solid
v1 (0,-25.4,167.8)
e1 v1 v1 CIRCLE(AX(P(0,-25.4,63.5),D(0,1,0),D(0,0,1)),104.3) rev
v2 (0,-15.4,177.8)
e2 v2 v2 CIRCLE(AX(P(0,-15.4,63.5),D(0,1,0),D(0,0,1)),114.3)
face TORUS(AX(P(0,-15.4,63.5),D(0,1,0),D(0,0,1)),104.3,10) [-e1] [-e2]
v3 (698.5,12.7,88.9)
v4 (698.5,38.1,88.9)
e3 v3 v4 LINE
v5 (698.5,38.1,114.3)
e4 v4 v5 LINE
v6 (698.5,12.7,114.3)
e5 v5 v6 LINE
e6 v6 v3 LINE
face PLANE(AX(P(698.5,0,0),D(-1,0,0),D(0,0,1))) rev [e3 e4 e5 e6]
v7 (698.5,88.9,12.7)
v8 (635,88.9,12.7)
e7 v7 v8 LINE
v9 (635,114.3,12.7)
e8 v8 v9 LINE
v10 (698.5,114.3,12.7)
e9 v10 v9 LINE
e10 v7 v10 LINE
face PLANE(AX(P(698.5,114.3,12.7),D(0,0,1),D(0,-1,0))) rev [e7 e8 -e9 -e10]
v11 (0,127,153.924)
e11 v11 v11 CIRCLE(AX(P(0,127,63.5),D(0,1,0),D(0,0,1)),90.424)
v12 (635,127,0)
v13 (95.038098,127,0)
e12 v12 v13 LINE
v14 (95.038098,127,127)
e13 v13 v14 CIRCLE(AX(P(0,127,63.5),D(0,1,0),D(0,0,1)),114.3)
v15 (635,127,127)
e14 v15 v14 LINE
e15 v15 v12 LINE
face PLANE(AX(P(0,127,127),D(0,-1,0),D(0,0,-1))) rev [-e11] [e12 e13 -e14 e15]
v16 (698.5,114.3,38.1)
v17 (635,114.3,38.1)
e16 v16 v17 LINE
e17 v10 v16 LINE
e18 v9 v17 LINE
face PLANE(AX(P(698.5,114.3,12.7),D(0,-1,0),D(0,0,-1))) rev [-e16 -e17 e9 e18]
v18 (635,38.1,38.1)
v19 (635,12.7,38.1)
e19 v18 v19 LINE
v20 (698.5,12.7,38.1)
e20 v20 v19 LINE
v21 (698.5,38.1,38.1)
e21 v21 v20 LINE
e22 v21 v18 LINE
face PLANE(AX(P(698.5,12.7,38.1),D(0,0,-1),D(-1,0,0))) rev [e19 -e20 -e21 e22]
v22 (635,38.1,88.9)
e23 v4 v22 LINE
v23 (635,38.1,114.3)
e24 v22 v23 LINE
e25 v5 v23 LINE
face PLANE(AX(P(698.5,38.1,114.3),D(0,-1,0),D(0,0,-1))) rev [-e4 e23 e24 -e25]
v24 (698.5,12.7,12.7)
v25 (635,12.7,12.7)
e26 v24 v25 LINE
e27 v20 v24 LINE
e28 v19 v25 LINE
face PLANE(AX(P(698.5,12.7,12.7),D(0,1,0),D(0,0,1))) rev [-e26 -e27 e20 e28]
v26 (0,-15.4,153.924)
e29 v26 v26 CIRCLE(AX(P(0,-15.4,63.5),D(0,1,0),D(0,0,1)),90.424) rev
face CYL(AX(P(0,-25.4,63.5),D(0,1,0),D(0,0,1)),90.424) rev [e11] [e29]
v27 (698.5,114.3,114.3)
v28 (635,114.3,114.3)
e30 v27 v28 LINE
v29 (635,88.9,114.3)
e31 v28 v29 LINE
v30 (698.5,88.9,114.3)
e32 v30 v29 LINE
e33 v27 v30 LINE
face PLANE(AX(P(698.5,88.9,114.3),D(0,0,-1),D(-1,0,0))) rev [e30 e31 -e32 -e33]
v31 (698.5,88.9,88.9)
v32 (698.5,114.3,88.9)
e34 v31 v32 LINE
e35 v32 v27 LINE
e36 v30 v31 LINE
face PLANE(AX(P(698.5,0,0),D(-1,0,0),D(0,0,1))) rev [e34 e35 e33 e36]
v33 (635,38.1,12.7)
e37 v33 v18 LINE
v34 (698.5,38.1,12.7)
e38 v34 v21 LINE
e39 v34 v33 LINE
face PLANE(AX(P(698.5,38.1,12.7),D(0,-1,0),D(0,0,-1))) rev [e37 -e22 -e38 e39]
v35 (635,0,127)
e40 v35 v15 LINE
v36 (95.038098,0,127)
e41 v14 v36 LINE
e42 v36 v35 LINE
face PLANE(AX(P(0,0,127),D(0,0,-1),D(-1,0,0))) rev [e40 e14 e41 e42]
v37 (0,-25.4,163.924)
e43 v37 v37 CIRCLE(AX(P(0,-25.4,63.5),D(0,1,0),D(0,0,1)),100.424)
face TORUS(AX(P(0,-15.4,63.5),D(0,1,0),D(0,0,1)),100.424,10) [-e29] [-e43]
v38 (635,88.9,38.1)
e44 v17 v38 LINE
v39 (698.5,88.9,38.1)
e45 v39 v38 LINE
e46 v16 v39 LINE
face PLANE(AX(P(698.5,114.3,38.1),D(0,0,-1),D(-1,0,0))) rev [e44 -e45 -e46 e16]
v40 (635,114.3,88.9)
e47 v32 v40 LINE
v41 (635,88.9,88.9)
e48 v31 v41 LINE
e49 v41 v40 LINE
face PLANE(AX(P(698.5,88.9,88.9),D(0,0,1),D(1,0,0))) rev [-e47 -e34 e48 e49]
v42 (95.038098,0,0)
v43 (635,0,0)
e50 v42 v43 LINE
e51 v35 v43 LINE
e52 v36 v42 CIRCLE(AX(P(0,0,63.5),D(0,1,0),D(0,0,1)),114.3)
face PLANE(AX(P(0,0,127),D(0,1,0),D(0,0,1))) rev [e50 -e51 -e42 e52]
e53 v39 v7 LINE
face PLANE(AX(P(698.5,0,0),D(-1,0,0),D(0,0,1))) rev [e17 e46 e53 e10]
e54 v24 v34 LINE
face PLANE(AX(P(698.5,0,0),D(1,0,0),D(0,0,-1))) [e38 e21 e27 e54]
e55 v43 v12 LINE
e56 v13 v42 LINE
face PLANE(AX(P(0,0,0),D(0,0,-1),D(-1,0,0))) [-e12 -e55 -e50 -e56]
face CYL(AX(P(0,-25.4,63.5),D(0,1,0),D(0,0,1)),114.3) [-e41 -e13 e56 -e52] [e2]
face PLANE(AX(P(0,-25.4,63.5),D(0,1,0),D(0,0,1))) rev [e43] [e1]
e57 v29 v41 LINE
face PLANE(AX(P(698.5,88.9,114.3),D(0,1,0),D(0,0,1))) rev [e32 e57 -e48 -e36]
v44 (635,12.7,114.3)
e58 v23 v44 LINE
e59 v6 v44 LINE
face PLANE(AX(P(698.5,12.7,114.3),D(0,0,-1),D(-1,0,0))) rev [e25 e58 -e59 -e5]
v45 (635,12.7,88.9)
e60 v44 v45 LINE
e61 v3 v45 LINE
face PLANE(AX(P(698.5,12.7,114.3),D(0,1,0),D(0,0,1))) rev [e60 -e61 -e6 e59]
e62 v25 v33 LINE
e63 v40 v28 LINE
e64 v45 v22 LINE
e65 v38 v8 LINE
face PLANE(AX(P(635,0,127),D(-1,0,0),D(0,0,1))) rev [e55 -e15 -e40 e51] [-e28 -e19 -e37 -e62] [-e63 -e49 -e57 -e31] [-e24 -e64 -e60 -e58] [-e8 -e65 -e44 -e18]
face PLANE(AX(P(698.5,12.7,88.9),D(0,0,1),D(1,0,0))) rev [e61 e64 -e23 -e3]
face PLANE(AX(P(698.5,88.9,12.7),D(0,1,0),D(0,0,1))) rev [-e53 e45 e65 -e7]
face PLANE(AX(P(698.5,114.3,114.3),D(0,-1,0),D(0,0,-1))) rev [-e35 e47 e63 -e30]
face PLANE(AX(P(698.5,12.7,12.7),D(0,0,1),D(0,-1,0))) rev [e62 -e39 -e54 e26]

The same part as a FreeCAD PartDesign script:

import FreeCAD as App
import Part
import Sketcher
from FreeCAD import Vector
Q = App.Units.Quantity


def edges_at(feature, points):
    """Names of the edges that pass closest to the given points."""
    edges = feature.Shape.Edges
    near = lambda p: min(range(len(edges)), key=lambda i: edges[i].distToShape(Part.Vertex(*p))[0])
    return sorted({f"Edge{near(p) + 1}" for p in points})

doc = App.newDocument("Part")
params = doc.addObject("Spreadsheet::Sheet", "Params")
for row, (alias, value) in enumerate([
    ("sketch1_width", "25 in"),
    ("sketch1_height", "5 in"),
    ("pad1_length", "5 in"),
    ("sketch2_diameter", "9 in"),
    ("sketch2_diameter2", "7.12 in"),
    ("pad2_length", "6 in"),
    ("sketch3_diameter", "7.12 in"),
    ("sketch4_width", "1 in"),
    ("pad3_length", "2.5 in"),
    ("fillet_radius", "10 mm"),
], start=1):
    params.set(f"A{row}", alias)
    params.set(f"B{row}", "=" + value)
    params.setAlias(f"B{row}", alias)

body = doc.addObject("PartDesign::Body", "Body")

# Sketch on XY plane
sketch1 = body.newObject("Sketcher::SketchObject", "Sketch")
sketch1.AttachmentSupport = (doc.getObject("XY_Plane"), [""])
sketch1.MapMode = "FlatFace"
sketch1.addGeometry([
    Part.LineSegment(Vector(0, 127, 0), Vector(0, 0, 0)),
    Part.LineSegment(Vector(0, 0, 0), Vector(635, 0, 0)),
    Part.LineSegment(Vector(635, 0, 0), Vector(635, 127, 0)),
    Part.LineSegment(Vector(635, 127, 0), Vector(0, 127, 0)),
], False)
sketch1.addConstraint([
    Sketcher.Constraint("Coincident", 0, 2, 1, 1),
    Sketcher.Constraint("Coincident", 1, 2, 2, 1),
    Sketcher.Constraint("Coincident", 2, 2, 3, 1),
    Sketcher.Constraint("Coincident", 3, 2, 0, 1),
    Sketcher.Constraint("Vertical", 0),
    Sketcher.Constraint("Horizontal", 1),
    Sketcher.Constraint("Vertical", 2),
    Sketcher.Constraint("Horizontal", 3),
    Sketcher.Constraint("Coincident", 0, 2, -1, 1),
    Sketcher.Constraint("DistanceX", 1, 1, 1, 2, Q("25 in")),
    Sketcher.Constraint("DistanceY", 0, 2, 0, 1, Q("5 in")),
])
sketch1.setExpression("Constraints[9]", "Params.sketch1_width")
sketch1.setExpression("Constraints[10]", "Params.sketch1_height")
pad1 = body.newObject("PartDesign::Pad", "Pad")
pad1.Profile = sketch1
pad1.setExpression("Length", "Params.pad1_length")

# Sketch on XZ plane
sketch2 = body.newObject("Sketcher::SketchObject", "Sketch001")
sketch2.AttachmentSupport = (doc.getObject("XZ_Plane"), [""])
sketch2.MapMode = "FlatFace"
sketch2.AttachmentOffset = App.Placement(Vector(0, 0, -5 * 25.4), App.Rotation())
sketch2.addGeometry([
    Part.Circle(Vector(0, 63.5, 0), Vector(0, 0, 1), 114.3),
    Part.Circle(Vector(0, 63.5, 0), Vector(0, 0, 1), 90.424),
], False)
sketch2.addConstraint([
    Sketcher.Constraint("Coincident", 1, 3, 0, 3),
    Sketcher.Constraint("PointOnObject", 0, 3, -2),
    Sketcher.Constraint("Diameter", 0, Q("9 in")),
    Sketcher.Constraint("Diameter", 1, Q("7.12 in")),
    Sketcher.Constraint("DistanceY", -1, 1, 0, 3, Q("2.5 in")),
])
sketch2.setExpression("Constraints[2]", "Params.sketch2_diameter")
sketch2.setExpression("Constraints[3]", "Params.sketch2_diameter2")
pad2 = body.newObject("PartDesign::Pad", "Pad001")
pad2.Profile = sketch2
pad2.setExpression("Length", "Params.pad2_length")

# Sketch on XZ plane
sketch3 = body.newObject("Sketcher::SketchObject", "Sketch002")
sketch3.AttachmentSupport = (doc.getObject("XZ_Plane"), [""])
sketch3.MapMode = "FlatFace"
sketch3.AttachmentOffset = App.Placement(Vector(0, 0, -5 * 25.4), App.Rotation())
sketch3.addGeometry(Part.Circle(Vector(0, 63.5, 0), Vector(0, 0, 1), 90.424), False)
sketch3.addConstraint([
    Sketcher.Constraint("PointOnObject", 0, 3, -2),
    Sketcher.Constraint("Diameter", 0, Q("7.12 in")),
    Sketcher.Constraint("DistanceY", -1, 1, 0, 3, Q("2.5 in")),
])
sketch3.setExpression("Constraints[1]", "Params.sketch3_diameter")
pocket1 = body.newObject("PartDesign::Pocket", "Pocket")
pocket1.Profile = sketch3
pocket1.Type = "ThroughAll"
pocket1.Midplane = True

# Sketch on YZ plane
sketch4 = body.newObject("Sketcher::SketchObject", "Sketch003")
sketch4.AttachmentSupport = (doc.getObject("YZ_Plane"), [""])
sketch4.MapMode = "FlatFace"
sketch4.AttachmentOffset = App.Placement(Vector(0, 0, 25 * 25.4), App.Rotation())
sketch4.addGeometry([
    Part.LineSegment(Vector(114.3, 114.3, 0), Vector(88.9, 114.3, 0)),  # 0
    Part.LineSegment(Vector(88.9, 114.3, 0), Vector(88.9, 88.9, 0)),  # 1
    Part.LineSegment(Vector(88.9, 88.9, 0), Vector(114.3, 88.9, 0)),  # 2
    Part.LineSegment(Vector(114.3, 88.9, 0), Vector(114.3, 114.3, 0)),  # 3
    Part.LineSegment(Vector(38.1, 38.1, 0), Vector(12.7, 38.1, 0)),  # 4
    Part.LineSegment(Vector(12.7, 38.1, 0), Vector(12.7, 12.7, 0)),  # 5
    Part.LineSegment(Vector(12.7, 12.7, 0), Vector(38.1, 12.7, 0)),  # 6
    Part.LineSegment(Vector(38.1, 12.7, 0), Vector(38.1, 38.1, 0)),  # 7
    Part.LineSegment(Vector(38.1, 114.3, 0), Vector(12.7, 114.3, 0)),  # 8
    Part.LineSegment(Vector(12.7, 114.3, 0), Vector(12.7, 88.9, 0)),  # 9
    Part.LineSegment(Vector(12.7, 88.9, 0), Vector(38.1, 88.9, 0)),  # 10
    Part.LineSegment(Vector(38.1, 88.9, 0), Vector(38.1, 114.3, 0)),  # 11
    Part.LineSegment(Vector(114.3, 38.1, 0), Vector(88.9, 38.1, 0)),  # 12
    Part.LineSegment(Vector(88.9, 38.1, 0), Vector(88.9, 12.7, 0)),  # 13
    Part.LineSegment(Vector(88.9, 12.7, 0), Vector(114.3, 12.7, 0)),  # 14
    Part.LineSegment(Vector(114.3, 12.7, 0), Vector(114.3, 38.1, 0)),  # 15
], False)
sketch4.addConstraint([
    Sketcher.Constraint("Coincident", 0, 2, 1, 1),
    Sketcher.Constraint("Coincident", 1, 2, 2, 1),
    Sketcher.Constraint("Coincident", 2, 2, 3, 1),
    Sketcher.Constraint("Coincident", 3, 2, 0, 1),
    Sketcher.Constraint("Coincident", 4, 2, 5, 1),
    Sketcher.Constraint("Coincident", 5, 2, 6, 1),
    Sketcher.Constraint("Coincident", 6, 2, 7, 1),
    Sketcher.Constraint("Coincident", 7, 2, 4, 1),
    Sketcher.Constraint("Coincident", 8, 2, 9, 1),
    Sketcher.Constraint("Coincident", 9, 2, 10, 1),
    Sketcher.Constraint("Coincident", 10, 2, 11, 1),
    Sketcher.Constraint("Coincident", 11, 2, 8, 1),
    Sketcher.Constraint("Coincident", 12, 2, 13, 1),
    Sketcher.Constraint("Coincident", 13, 2, 14, 1),
    Sketcher.Constraint("Coincident", 14, 2, 15, 1),
    Sketcher.Constraint("Coincident", 15, 2, 12, 1),
    Sketcher.Constraint("Horizontal", 0),
    Sketcher.Constraint("Vertical", 1),
    Sketcher.Constraint("Horizontal", 2),
    Sketcher.Constraint("Vertical", 3),
    Sketcher.Constraint("Horizontal", 4),
    Sketcher.Constraint("Vertical", 5),
    Sketcher.Constraint("Horizontal", 6),
    Sketcher.Constraint("Vertical", 7),
    Sketcher.Constraint("Horizontal", 8),
    Sketcher.Constraint("Vertical", 9),
    Sketcher.Constraint("Horizontal", 10),
    Sketcher.Constraint("Vertical", 11),
    Sketcher.Constraint("Horizontal", 12),
    Sketcher.Constraint("Vertical", 13),
    Sketcher.Constraint("Horizontal", 14),
    Sketcher.Constraint("Vertical", 15),
    Sketcher.Constraint("Horizontal", 3, 2, 8, 2),
    Sketcher.Constraint("Horizontal", 2, 2, 9, 2),
    Sketcher.Constraint("Horizontal", 7, 2, 12, 2),
    Sketcher.Constraint("Horizontal", 6, 2, 13, 2),
    Sketcher.Constraint("Vertical", 5, 2, 8, 2),
    Sketcher.Constraint("Vertical", 7, 2, 10, 2),
    Sketcher.Constraint("Vertical", 1, 2, 12, 2),
    Sketcher.Constraint("Vertical", 3, 2, 14, 2),
    Sketcher.Constraint("Equal", 2, 4),
    Sketcher.Constraint("Equal", 14, 1),
    Sketcher.Constraint("Equal", 3, 5),
    Sketcher.Constraint("DistanceX", 0, 2, 0, 1, Q("1 in")),
    Sketcher.Constraint("DistanceX", 4, 2, 1, 2, Q("3 in")),
    Sketcher.Constraint("DistanceY", 4, 2, 1, 2, Q("2 in")),
    Sketcher.Constraint("DistanceX", -1, 1, 0, 2, Q("3.5 in")),
    Sketcher.Constraint("DistanceY", -1, 1, 0, 2, Q("4.5 in")),
])
sketch4.setExpression("Constraints[43]", "Params.sketch4_width")
pad3 = body.newObject("PartDesign::Pad", "Pad002")
pad3.Profile = sketch4
pad3.setExpression("Length", "Params.pad3_length")
doc.recompute()

fillet = body.newObject("PartDesign::Fillet", "Fillet")
fillet.Base = (pad3, edges_at(pad3, [(-114.3, -25.4, 63.5), (-90.424, -25.4, 63.5)]))
fillet.setExpression("Radius", "Params.fillet_radius")

doc.recompute()
